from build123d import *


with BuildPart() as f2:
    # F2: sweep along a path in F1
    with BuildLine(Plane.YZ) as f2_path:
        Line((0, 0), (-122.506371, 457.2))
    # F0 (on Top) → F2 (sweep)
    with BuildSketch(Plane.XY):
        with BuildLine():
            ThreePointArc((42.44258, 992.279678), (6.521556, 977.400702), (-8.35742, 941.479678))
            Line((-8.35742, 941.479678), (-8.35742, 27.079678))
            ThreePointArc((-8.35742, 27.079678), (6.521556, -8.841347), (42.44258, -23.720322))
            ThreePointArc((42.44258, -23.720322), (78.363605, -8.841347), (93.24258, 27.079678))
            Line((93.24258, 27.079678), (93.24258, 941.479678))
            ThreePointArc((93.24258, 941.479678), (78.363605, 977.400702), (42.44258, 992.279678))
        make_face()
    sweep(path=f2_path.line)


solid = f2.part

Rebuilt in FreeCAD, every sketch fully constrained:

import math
import FreeCAD as App
import Part
import Sketcher
from FreeCAD import Vector
Q = App.Units.Quantity

doc = App.newDocument("Part")
body = doc.addObject("PartDesign::Body", "Body")

# Sketch on XY plane
sketch1 = body.newObject("Sketcher::SketchObject", "Sketch")
sketch1.AttachmentSupport = (doc.getObject("XY_Plane"), [""])
sketch1.MapMode = "FlatFace"
sketch1.addGeometry([
    Part.ArcOfCircle(Part.Circle(Vector(42.442582, 941.479676, 0), Vector(0, 0, 1), 50.800002), math.radians(90.000002), math.radians(179.999998)),  # 0
    Part.LineSegment(Vector(-8.35742, 941.479678, 0), Vector(-8.35742, 27.079678, 0)),  # 1
    Part.ArcOfCircle(Part.Circle(Vector(42.44258, 27.079678, 0), Vector(0, 0, 1), 50.8), math.radians(180), math.radians(270)),  # 2
    Part.ArcOfCircle(Part.Circle(Vector(42.442582, 27.079676, 0), Vector(0, 0, 1), 50.799998), math.radians(-90.000002), math.radians(0.000002)),  # 3
    Part.LineSegment(Vector(93.24258, 27.079678, 0), Vector(93.24258, 941.479678, 0)),  # 4
    Part.ArcOfCircle(Part.Circle(Vector(42.44258, 941.479678, 0), Vector(0, 0, 1), 50.8), math.radians(0), math.radians(90)),  # 5
], False)
sketch1.addConstraint([
    Sketcher.Constraint("Tangent", 0, 2, 1, 1),
    Sketcher.Constraint("Tangent", 1, 2, 2, 1),
    Sketcher.Constraint("Tangent", 2, 2, 3, 1),
    Sketcher.Constraint("Tangent", 3, 2, 4, 1),
    Sketcher.Constraint("Tangent", 4, 2, 5, 1),
    Sketcher.Constraint("Tangent", 5, 2, 0, 1),
    Sketcher.Constraint("Vertical", 1),
    Sketcher.Constraint("Vertical", 4),
    Sketcher.Constraint("Equal", 0, 2),
    Sketcher.Constraint("Equal", 2, 3),
    Sketcher.Constraint("Vertical", 5, 3, 2, 2),
    Sketcher.Constraint("Vertical", 2, 2, 5, 2),
    Sketcher.Constraint("Radius", 0, Q("2.0000001 in")),
    Sketcher.Constraint("DistanceY", 1, 2, 1, 1, Q("36 in")),
    Sketcher.Constraint("DistanceX", -1, 1, 0, 3, Q("42.442582 mm")),
    Sketcher.Constraint("DistanceY", -1, 1, 5, 3, Q("941.479678 mm")),
])

# Sketch on an angled plane
sketch2 = body.newObject("Sketcher::SketchObject", "Sketch001")
sketch2.Placement = App.Placement(Vector(0, 0, 0), App.Rotation(Vector(0, -0.258819046, 0.965925826), Vector(1, 0, 0), Vector(0, 0.965925826, 0.258819046), "ZXY"))
sketch2.addGeometry(Part.LineSegment(Vector(0, 0, 0), Vector(473.32827, 0, 0)), False)
sketch2.addConstraint([
    Sketcher.Constraint("Horizontal", 0),
    Sketcher.Constraint("Coincident", 0, 1, -1, 1),
    Sketcher.Constraint("DistanceX", 0, 1, 0, 2, Q("473.32827 mm")),
])
doc.recompute()

additivepipe = body.newObject("PartDesign::AdditivePipe", "AdditivePipe")
additivepipe.Profile = sketch1
additivepipe.Spine = (sketch2, ["Edge1"])

doc.recompute()
